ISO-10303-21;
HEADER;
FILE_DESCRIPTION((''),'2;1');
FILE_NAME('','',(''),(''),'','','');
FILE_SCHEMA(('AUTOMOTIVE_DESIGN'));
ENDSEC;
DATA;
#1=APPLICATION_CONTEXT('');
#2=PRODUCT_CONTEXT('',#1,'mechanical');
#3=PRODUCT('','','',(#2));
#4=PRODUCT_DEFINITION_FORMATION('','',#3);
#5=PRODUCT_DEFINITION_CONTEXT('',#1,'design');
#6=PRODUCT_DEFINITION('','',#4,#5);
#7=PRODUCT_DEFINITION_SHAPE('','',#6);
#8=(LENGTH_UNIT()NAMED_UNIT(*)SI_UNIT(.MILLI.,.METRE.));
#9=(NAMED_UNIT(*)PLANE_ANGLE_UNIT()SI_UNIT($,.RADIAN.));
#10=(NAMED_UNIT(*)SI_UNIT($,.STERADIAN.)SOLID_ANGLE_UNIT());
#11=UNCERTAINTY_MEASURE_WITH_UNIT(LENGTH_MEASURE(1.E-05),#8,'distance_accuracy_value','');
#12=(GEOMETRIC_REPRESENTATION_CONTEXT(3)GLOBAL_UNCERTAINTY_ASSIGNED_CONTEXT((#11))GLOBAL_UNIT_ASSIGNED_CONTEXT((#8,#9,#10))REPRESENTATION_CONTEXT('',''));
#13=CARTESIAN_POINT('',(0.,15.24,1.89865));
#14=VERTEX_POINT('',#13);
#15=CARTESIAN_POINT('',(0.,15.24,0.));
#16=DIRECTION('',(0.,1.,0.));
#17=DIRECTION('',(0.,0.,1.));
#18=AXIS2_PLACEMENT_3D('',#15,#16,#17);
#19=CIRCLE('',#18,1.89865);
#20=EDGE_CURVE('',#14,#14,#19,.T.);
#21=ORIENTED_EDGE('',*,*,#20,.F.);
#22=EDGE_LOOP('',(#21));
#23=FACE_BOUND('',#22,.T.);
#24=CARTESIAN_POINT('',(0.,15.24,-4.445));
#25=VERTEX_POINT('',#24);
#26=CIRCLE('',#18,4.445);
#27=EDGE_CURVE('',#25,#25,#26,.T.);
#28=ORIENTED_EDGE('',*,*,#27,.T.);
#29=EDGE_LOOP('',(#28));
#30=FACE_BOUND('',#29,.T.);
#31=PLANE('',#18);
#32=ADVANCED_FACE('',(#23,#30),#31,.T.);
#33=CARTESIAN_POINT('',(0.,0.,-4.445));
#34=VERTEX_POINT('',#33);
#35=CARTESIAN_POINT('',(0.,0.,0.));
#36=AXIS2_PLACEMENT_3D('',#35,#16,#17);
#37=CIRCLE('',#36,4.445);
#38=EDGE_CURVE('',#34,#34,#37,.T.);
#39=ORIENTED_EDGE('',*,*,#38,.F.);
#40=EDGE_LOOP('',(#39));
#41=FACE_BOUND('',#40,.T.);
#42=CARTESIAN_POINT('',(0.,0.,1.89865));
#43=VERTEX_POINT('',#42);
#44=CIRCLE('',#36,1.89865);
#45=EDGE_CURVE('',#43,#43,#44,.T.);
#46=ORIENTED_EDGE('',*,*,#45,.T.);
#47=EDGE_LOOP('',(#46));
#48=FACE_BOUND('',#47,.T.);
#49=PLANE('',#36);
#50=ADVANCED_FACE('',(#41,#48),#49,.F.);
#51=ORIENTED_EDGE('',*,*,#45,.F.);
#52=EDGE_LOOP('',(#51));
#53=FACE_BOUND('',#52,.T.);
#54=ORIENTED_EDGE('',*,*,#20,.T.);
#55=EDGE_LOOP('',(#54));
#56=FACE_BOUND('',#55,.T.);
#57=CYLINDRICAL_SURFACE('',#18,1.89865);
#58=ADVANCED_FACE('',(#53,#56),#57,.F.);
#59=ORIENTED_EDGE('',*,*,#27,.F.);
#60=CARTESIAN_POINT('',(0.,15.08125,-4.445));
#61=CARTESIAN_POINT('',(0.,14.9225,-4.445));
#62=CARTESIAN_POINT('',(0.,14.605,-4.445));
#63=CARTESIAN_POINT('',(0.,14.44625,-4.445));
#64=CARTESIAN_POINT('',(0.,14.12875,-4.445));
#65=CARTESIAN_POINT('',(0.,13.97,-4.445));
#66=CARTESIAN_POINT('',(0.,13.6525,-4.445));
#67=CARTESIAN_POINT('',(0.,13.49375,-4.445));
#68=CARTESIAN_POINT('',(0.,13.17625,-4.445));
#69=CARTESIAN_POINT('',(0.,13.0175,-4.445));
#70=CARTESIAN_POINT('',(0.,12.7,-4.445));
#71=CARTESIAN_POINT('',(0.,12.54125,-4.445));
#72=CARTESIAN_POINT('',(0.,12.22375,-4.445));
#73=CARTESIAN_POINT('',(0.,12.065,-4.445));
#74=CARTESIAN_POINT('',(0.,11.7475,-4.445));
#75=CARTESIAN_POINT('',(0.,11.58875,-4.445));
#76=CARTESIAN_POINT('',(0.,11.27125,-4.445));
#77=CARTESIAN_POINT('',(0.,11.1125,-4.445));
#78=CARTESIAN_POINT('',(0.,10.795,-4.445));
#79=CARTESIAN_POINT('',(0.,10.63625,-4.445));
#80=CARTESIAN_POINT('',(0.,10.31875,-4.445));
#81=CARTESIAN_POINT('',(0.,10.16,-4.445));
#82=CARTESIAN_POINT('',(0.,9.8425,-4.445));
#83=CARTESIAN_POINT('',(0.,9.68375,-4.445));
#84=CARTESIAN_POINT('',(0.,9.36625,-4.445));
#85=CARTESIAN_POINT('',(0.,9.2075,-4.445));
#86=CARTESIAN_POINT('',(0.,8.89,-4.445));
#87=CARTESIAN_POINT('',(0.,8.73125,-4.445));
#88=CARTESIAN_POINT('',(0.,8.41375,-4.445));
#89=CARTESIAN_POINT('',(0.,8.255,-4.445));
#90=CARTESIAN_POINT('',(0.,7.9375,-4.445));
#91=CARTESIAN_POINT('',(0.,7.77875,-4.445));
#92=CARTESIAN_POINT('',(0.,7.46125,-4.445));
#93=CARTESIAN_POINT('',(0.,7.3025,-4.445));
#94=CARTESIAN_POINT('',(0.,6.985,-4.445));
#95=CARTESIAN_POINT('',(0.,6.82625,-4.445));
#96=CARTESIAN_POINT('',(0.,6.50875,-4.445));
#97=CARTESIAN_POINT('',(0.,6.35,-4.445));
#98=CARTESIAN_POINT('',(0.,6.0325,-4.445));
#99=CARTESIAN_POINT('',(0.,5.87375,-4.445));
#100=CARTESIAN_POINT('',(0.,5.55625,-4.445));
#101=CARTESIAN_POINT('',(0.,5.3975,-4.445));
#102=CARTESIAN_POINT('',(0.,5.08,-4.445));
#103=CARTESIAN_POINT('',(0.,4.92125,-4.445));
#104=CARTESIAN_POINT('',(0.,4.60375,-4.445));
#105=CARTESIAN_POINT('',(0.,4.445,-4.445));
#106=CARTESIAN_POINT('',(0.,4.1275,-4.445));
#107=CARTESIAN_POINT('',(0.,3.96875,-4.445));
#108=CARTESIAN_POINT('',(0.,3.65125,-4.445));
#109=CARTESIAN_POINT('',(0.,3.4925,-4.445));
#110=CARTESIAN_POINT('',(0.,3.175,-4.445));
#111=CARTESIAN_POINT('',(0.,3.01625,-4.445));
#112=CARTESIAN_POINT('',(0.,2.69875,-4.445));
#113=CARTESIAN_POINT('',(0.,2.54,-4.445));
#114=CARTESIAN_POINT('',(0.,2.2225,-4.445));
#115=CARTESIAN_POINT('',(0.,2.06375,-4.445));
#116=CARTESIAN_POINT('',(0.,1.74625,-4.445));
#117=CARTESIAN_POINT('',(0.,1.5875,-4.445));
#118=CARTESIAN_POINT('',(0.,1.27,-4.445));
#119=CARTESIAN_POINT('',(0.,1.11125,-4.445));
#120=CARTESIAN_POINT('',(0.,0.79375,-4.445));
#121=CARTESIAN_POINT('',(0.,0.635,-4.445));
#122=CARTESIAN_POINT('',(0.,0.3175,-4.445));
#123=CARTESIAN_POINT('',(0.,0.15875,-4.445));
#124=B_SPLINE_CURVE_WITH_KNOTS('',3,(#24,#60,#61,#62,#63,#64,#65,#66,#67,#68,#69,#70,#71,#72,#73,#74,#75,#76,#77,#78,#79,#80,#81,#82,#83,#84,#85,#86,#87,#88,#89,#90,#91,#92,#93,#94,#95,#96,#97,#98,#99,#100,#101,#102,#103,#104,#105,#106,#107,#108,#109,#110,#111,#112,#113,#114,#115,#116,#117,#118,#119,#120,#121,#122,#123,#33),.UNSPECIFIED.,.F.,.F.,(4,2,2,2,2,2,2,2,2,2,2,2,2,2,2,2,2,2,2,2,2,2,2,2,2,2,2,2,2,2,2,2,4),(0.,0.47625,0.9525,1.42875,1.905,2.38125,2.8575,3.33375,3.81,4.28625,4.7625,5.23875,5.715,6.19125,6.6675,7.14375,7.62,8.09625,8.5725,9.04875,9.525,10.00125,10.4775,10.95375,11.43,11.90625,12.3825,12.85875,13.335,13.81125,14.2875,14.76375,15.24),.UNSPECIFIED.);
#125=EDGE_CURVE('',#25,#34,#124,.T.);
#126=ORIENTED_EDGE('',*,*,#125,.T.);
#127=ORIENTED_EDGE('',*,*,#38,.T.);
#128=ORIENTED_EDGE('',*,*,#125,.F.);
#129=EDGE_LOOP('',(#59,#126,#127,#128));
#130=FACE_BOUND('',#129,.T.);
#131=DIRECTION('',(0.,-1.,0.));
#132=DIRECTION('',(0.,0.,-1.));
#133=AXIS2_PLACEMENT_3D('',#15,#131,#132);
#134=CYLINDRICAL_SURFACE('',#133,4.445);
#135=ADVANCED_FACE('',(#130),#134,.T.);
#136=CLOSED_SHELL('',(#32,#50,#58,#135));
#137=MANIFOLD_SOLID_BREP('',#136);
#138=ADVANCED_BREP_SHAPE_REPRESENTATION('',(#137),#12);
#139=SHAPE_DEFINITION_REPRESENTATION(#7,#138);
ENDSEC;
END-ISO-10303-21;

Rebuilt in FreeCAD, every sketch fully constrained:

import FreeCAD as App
import Part
import Sketcher
from FreeCAD import Vector
Q = App.Units.Quantity

doc = App.newDocument("Part")
body = doc.addObject("PartDesign::Body", "Body")

sketch1 = body.newObject("Sketcher::SketchObject", "Sketch")
sketch1.AttachmentSupport = (doc.getObject("XZ_Plane"), [""])
sketch1.MapMode = "FlatFace"
sketch1.addGeometry(Part.Circle(Vector(0, 0, 0), Vector(0, 0, 1), 4.445), False)
sketch1.addConstraint(Sketcher.Constraint("Coincident", 0, 3, -1, 1))
sketch1.addConstraint(Sketcher.Constraint("Diameter", 0, Q("0.35 in")))
pad1 = body.newObject("PartDesign::Pad", "Pad")
pad1.Profile = sketch1
pad1.Length = Q("0.6 in")
pad1.Reversed = True

sketch2 = body.newObject("Sketcher::SketchObject", "Sketch001")
sketch2.AttachmentSupport = (doc.getObject("XZ_Plane"), [""])
sketch2.MapMode = "FlatFace"
sketch2.AttachmentOffset = App.Placement(Vector(0, 0, -0.6 * 25.4), App.Rotation())
sketch2.addGeometry(Part.Circle(Vector(0, 0, 0), Vector(0, 0, 1), 1.89865), False)
sketch2.addConstraint(Sketcher.Constraint("Coincident", 0, 3, -1, 1))
sketch2.addConstraint(Sketcher.Constraint("Diameter", 0, Q("0.1495 in")))
doc.recompute()
hole = body.newObject("PartDesign::Hole", "Hole")
hole.Profile = sketch2
hole.ThreadType = "None"
hole.Diameter = Q("0.1495 in")
hole.DepthType = "ThroughAll"
hole.Reversed = True

doc.recompute()
